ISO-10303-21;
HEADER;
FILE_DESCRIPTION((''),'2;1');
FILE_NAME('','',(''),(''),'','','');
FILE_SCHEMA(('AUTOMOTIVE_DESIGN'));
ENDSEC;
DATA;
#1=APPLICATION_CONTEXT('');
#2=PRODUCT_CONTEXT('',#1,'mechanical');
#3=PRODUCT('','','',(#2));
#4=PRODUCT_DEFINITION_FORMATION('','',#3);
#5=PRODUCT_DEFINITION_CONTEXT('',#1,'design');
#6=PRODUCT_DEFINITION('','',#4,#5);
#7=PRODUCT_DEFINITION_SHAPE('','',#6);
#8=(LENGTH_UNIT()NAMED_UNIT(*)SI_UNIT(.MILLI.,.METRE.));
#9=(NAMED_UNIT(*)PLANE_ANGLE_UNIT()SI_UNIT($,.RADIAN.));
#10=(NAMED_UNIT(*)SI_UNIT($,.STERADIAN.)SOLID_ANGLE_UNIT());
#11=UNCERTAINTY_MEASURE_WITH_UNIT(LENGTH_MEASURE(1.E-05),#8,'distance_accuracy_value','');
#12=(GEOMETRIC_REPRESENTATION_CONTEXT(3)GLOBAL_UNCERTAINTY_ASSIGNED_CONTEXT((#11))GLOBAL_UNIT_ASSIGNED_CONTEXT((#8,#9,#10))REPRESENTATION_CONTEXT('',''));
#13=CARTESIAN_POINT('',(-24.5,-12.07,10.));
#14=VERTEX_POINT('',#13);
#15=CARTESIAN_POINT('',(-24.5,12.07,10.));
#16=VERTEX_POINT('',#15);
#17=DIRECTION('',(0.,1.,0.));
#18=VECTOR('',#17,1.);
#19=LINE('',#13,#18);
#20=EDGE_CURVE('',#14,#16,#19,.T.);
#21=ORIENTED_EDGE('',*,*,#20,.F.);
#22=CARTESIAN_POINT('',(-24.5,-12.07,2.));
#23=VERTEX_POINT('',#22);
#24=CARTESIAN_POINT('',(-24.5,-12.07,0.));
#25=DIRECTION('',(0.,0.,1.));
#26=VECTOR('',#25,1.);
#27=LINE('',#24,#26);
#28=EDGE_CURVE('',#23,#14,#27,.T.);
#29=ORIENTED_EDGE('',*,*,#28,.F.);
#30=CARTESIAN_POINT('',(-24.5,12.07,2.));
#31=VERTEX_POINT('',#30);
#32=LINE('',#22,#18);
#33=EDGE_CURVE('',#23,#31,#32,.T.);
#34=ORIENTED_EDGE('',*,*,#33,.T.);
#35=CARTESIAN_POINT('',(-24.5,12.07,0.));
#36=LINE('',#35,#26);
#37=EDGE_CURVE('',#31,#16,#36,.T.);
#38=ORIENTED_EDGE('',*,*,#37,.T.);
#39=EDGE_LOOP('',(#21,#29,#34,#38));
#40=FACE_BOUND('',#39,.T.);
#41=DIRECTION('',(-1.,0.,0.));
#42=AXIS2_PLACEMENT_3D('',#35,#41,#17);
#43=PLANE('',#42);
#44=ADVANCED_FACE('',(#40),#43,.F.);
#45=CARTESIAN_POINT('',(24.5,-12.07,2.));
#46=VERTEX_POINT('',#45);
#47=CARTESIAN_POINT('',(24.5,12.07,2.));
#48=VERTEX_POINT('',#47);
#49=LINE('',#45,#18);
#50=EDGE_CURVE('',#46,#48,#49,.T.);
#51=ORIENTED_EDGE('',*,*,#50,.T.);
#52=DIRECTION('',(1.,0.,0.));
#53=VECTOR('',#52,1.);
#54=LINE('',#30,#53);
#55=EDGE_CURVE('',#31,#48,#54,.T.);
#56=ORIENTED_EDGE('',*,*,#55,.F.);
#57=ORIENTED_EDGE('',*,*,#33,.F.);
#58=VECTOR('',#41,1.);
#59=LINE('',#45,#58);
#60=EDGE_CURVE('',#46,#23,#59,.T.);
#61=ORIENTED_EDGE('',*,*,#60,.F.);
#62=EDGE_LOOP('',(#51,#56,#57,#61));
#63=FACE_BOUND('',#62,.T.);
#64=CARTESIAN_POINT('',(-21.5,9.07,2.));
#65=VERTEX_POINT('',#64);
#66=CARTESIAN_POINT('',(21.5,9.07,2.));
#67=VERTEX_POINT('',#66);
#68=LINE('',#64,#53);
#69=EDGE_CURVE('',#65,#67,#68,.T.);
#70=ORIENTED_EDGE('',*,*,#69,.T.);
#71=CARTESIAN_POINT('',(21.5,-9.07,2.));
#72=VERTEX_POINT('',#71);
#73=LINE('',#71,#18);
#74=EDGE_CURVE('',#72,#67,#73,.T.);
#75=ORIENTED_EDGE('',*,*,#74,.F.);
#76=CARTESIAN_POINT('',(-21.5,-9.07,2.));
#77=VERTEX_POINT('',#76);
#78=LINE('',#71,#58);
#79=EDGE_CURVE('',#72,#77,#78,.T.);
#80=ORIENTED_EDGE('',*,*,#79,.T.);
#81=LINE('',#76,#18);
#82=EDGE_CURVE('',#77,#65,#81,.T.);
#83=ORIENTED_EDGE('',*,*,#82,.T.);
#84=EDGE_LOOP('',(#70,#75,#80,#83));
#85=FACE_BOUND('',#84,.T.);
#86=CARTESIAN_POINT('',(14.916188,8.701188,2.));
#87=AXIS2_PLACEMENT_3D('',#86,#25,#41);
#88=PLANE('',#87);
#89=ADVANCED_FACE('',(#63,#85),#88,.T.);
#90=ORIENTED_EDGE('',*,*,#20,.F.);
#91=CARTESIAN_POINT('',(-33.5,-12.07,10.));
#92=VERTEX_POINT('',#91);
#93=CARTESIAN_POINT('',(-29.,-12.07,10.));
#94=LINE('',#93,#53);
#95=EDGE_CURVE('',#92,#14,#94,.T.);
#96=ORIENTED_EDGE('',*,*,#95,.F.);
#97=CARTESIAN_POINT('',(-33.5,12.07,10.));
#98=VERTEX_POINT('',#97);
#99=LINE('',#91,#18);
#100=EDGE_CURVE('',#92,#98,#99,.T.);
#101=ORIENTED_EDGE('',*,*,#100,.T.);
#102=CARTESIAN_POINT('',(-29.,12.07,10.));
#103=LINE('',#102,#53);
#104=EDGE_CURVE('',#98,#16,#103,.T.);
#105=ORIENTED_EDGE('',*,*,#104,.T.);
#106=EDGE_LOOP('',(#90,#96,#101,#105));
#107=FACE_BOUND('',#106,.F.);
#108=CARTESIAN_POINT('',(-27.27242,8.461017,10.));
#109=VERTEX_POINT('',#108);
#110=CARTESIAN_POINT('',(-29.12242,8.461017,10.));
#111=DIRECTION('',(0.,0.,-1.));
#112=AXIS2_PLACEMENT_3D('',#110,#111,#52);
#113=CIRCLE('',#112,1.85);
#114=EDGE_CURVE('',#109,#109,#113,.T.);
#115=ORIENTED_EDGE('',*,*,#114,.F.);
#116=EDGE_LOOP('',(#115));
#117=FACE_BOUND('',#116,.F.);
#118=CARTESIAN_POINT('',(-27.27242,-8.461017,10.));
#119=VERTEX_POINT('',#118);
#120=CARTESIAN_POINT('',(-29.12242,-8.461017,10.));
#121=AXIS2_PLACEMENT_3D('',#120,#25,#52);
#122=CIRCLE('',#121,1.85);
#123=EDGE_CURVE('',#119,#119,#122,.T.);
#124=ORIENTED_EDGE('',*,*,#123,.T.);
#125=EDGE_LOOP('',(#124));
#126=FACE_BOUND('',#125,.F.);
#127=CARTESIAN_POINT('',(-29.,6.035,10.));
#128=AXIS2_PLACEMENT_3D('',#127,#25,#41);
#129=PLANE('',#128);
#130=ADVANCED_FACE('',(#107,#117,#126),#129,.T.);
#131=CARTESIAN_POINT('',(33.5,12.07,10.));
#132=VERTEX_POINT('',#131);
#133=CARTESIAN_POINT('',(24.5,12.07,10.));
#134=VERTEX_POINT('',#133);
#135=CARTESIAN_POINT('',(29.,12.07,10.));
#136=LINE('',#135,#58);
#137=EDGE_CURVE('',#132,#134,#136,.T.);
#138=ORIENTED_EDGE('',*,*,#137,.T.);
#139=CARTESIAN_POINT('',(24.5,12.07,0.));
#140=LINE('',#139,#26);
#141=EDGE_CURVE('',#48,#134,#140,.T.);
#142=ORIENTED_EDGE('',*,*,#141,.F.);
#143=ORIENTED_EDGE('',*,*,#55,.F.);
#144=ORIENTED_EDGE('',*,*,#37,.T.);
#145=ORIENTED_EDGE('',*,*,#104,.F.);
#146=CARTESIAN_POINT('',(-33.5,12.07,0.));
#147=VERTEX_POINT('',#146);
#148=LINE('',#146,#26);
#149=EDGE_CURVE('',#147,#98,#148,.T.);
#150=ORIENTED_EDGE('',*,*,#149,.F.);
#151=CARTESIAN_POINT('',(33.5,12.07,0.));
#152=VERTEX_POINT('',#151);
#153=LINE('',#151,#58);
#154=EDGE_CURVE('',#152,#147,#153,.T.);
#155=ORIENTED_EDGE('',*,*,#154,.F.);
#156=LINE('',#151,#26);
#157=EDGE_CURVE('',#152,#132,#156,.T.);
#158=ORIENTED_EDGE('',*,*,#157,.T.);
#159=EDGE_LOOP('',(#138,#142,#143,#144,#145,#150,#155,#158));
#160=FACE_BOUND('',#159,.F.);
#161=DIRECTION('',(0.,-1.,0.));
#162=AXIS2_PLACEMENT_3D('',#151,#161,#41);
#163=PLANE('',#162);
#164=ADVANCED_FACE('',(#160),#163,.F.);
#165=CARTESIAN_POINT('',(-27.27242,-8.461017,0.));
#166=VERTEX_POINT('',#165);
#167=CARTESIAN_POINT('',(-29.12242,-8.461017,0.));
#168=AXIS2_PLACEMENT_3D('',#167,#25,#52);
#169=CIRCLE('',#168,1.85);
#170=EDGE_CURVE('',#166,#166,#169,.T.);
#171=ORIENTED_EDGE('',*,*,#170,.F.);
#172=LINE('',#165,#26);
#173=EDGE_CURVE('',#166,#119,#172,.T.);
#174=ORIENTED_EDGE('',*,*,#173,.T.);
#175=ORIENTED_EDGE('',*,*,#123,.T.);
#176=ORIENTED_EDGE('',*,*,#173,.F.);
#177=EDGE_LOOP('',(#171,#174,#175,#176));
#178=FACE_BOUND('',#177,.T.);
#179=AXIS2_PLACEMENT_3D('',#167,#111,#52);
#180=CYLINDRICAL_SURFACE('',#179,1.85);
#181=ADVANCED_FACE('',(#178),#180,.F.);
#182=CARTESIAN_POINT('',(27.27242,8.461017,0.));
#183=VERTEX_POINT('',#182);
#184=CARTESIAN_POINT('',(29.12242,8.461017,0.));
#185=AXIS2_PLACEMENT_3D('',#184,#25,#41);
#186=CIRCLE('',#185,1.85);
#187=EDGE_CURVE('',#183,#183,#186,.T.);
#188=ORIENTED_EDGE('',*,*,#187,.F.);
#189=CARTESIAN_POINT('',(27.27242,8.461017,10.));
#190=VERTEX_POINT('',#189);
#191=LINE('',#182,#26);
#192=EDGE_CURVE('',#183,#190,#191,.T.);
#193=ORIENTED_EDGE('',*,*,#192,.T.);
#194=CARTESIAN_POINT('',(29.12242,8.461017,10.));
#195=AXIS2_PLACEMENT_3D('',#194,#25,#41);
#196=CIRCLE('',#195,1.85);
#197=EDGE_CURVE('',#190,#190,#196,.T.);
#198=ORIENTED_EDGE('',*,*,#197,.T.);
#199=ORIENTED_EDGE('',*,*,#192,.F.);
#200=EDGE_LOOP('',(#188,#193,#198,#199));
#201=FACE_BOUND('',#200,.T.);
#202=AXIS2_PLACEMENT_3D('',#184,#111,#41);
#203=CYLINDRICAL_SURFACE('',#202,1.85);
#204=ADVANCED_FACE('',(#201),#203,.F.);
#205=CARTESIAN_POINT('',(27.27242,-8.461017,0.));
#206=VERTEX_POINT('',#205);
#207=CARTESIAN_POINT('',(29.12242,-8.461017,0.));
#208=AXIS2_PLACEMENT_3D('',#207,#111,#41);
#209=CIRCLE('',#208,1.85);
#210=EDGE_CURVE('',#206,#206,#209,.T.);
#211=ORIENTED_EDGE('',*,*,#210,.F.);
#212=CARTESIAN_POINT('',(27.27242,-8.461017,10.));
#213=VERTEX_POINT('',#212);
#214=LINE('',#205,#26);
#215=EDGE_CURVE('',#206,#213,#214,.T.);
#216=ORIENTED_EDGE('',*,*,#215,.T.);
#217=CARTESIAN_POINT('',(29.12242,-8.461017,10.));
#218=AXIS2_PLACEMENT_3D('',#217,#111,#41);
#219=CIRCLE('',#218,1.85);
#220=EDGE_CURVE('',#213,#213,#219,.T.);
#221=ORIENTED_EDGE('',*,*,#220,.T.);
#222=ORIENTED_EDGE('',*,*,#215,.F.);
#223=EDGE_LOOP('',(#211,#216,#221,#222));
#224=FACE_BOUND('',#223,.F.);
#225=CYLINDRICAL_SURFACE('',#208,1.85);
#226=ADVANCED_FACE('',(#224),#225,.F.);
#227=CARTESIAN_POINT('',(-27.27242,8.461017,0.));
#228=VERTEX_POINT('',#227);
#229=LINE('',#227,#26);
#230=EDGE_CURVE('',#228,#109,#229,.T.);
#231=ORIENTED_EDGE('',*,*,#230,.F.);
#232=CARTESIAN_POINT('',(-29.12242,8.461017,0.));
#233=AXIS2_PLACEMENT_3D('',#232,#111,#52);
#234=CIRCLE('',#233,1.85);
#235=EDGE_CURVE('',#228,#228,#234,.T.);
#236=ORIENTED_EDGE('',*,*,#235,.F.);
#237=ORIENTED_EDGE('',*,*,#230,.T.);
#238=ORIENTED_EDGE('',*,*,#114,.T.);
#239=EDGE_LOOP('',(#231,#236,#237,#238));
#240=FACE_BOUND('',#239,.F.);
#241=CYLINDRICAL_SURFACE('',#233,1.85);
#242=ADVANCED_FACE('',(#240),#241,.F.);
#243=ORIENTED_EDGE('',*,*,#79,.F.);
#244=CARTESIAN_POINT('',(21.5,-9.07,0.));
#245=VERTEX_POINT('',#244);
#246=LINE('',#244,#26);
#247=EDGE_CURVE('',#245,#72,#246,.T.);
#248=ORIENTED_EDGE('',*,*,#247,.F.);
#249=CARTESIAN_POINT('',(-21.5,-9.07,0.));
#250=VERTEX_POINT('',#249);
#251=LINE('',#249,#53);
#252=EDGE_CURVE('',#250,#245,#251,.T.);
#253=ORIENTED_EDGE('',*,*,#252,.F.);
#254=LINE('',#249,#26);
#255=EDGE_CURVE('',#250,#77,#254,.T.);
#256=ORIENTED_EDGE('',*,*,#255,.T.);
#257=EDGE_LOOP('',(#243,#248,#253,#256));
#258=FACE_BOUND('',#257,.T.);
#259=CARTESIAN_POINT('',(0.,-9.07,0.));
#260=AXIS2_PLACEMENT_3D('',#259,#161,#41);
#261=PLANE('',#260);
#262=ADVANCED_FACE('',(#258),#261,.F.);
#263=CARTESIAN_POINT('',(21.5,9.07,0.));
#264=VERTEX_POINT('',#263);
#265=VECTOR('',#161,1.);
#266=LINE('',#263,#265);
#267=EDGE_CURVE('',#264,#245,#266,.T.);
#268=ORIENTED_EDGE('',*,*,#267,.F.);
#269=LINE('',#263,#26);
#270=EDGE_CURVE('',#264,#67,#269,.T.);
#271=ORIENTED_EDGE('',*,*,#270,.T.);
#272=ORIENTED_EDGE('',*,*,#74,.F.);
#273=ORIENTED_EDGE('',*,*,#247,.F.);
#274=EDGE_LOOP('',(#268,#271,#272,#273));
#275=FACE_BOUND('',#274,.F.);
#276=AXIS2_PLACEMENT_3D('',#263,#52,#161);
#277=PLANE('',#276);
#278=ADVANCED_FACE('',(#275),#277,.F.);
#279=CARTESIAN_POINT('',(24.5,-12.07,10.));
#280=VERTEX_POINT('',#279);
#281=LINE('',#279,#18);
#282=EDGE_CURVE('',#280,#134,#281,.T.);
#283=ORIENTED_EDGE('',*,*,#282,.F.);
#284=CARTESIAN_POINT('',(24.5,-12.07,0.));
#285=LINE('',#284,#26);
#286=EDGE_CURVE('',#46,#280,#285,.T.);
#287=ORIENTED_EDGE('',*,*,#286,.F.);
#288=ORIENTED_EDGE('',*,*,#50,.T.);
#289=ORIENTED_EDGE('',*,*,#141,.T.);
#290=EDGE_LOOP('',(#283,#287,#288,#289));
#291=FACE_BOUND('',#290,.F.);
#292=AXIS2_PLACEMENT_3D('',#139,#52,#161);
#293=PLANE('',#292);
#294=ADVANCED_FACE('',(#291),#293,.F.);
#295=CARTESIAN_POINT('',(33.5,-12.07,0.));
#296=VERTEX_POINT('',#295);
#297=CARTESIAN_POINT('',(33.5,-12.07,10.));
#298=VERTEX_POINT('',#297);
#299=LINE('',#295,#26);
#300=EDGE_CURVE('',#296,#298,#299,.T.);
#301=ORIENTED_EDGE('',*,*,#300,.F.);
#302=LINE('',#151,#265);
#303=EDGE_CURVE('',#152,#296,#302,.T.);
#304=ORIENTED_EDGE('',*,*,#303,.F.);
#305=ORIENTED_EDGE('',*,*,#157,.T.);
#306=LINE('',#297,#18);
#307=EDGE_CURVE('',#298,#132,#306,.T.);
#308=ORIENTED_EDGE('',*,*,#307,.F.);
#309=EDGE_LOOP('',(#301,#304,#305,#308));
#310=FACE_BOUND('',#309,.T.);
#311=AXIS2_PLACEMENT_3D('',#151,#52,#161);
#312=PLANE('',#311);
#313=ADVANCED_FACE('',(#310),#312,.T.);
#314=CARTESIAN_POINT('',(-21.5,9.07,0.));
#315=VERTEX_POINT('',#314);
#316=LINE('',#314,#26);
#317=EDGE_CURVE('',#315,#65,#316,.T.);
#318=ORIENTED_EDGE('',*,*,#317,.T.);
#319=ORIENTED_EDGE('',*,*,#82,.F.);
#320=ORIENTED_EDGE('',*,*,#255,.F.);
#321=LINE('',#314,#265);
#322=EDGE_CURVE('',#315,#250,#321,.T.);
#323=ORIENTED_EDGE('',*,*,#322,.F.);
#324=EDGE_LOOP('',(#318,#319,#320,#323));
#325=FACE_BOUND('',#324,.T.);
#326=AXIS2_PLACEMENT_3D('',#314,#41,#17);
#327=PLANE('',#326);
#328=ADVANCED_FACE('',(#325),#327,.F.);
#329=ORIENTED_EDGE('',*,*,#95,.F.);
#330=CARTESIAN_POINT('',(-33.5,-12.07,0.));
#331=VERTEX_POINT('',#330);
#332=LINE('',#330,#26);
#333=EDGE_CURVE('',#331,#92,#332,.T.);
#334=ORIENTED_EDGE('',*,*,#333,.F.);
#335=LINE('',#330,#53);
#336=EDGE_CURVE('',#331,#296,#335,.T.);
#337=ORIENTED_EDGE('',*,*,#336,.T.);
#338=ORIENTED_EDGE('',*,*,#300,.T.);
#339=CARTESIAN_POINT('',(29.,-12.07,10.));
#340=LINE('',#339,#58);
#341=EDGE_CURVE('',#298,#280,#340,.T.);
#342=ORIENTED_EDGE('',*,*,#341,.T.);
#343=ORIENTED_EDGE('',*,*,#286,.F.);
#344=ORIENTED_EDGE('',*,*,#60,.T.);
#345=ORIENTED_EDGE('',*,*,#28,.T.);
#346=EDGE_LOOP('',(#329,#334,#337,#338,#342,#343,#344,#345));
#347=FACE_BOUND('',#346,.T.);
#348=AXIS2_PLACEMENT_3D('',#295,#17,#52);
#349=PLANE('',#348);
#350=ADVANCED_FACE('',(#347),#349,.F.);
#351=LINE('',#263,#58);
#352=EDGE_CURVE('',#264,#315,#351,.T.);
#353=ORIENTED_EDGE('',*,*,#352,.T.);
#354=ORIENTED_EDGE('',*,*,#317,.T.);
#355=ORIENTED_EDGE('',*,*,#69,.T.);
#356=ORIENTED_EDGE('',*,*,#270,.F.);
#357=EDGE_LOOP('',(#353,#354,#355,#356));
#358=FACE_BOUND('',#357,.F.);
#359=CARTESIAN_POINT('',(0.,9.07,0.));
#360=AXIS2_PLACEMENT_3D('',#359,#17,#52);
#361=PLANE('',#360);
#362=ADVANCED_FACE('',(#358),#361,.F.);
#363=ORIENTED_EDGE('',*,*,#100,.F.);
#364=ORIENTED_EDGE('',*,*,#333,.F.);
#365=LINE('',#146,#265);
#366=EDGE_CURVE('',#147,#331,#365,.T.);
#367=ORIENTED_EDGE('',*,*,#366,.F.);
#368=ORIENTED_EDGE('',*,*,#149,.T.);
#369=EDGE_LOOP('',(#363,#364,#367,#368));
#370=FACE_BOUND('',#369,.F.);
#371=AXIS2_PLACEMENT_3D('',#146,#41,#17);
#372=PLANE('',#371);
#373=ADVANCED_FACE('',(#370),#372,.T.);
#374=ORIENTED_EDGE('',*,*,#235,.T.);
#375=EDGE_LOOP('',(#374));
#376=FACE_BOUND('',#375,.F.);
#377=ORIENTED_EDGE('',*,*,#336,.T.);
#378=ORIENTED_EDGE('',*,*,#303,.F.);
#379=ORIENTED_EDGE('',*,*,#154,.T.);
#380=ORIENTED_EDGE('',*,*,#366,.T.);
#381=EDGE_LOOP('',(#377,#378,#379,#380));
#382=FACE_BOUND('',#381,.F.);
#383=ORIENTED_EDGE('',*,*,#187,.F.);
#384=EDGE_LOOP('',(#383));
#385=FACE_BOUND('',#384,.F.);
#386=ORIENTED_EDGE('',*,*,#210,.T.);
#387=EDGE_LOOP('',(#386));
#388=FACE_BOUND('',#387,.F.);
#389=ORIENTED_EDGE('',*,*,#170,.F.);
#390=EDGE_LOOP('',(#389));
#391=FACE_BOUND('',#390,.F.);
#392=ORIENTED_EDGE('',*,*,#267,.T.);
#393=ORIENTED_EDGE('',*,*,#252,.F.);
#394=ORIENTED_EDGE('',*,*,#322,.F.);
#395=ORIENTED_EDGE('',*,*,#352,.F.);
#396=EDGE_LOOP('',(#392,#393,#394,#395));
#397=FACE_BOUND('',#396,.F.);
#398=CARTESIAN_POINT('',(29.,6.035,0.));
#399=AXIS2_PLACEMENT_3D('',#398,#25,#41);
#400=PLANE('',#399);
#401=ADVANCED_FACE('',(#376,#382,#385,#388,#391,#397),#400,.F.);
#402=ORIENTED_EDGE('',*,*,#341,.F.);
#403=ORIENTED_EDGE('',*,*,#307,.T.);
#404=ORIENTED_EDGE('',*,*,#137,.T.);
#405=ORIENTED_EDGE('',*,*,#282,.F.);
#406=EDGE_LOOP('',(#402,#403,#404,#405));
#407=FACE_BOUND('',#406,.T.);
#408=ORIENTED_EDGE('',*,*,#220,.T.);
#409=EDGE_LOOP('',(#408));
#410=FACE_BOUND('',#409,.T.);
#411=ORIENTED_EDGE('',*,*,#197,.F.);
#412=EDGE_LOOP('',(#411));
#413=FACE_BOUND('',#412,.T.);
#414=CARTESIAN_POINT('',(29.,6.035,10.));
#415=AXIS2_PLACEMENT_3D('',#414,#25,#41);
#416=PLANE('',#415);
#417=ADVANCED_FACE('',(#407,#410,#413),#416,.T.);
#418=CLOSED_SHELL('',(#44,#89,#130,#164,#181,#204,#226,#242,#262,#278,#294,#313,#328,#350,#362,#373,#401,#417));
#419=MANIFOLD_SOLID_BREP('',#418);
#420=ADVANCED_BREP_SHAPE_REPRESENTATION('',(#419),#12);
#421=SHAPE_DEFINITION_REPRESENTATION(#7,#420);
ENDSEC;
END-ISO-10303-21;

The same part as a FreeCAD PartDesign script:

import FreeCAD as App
import Part
import Sketcher

V = App.Vector


def add_polygon(sketch, points):
    """Adds a closed chain of lines whose ends are joined by coincident constraints."""
    first, n = sketch.GeometryCount, len(points)
    for a, b in zip(points, points[1:] + points[:1]):
        sketch.addGeometry(Part.LineSegment(App.Vector(*a, 0), App.Vector(*b, 0)), False)
    for i in range(n):
        sketch.addConstraint(Sketcher.Constraint("Coincident", first + i, 2, first + (i + 1) % n, 1))

doc = App.newDocument("Part")
params = doc.addObject("Spreadsheet::Sheet", "Params")
for row, (alias, value) in enumerate([
    ("sketch1_width", "3 mm"),
    ("sketch1_width2", "24.5 mm"),
    ("sketch1_height", "9.07 mm"),
    ("pad1_length", "2 mm"),
    ("sketch2_diameter", "3.7 mm"),
    ("sketch2_width", "9 mm"),
    ("sketch2_height", "12.07 mm"),
    ("pad2_length", "10 mm"),
], start=1):
    params.set(f"A{row}", alias)
    params.set(f"B{row}", "=" + value)
    params.setAlias(f"B{row}", alias)

body = doc.addObject("PartDesign::Body", "Body")

# Sketch on XY plane
sketch1 = doc.addObject("Sketcher::SketchObject", "Sketch")
body.addObject(sketch1)
sketch1.AttachmentSupport = (doc.XY_Plane, [""])
sketch1.MapMode = "FlatFace"
add_polygon(sketch1, [(-21.5, -9.1), (-21.5, 0), (-24.5, 0), (-24.5, -12.1), (0, -12.1), (0, -9.1)])  # lines 0-5
sketch1.addConstraint([
    Sketcher.Constraint("Vertical", 0),
    Sketcher.Constraint("Horizontal", 1),
    Sketcher.Constraint("Vertical", 2),
    Sketcher.Constraint("Horizontal", 3),
    Sketcher.Constraint("Vertical", 4),
    Sketcher.Constraint("Horizontal", 5),
    Sketcher.Constraint("PointOnObject", 0, 2, -1),
    Sketcher.Constraint("PointOnObject", 3, 2, -2),
    Sketcher.Constraint("Equal", 1, 4),
    Sketcher.Constraint("DistanceX", 1, 2, 1, 1, 3.0),
    Sketcher.Constraint("DistanceX", 3, 1, 3, 2, 24.5),
    Sketcher.Constraint("DistanceY", 0, 1, 0, 2, 9.07),
])
sketch1.setExpression("Constraints[15]", "Params.sketch1_width")
sketch1.setExpression("Constraints[16]", "Params.sketch1_width2")
sketch1.setExpression("Constraints[17]", "Params.sketch1_height")
pad1 = doc.addObject("PartDesign::Pad", "Pad")
body.addObject(pad1)
pad1.Profile = sketch1
pad1.setExpression("Length", "Params.pad1_length")

# Sketch on XY plane
sketch2 = doc.addObject("Sketcher::SketchObject", "Sketch001")
body.addObject(sketch2)
sketch2.AttachmentSupport = (doc.XY_Plane, [""])
sketch2.MapMode = "FlatFace"
add_polygon(sketch2, [(-33.5, 0), (-33.5, -12.1), (-24.5, -12.1), (-24.5, 0)])  # lines 0-3
sketch2.addGeometry(Part.Circle(V(-29.1, -8.5, 0), V(0, 0, 1), 1.9), False)  # 4
sketch2.addConstraint([
    Sketcher.Constraint("Vertical", 0),
    Sketcher.Constraint("Horizontal", 1),
    Sketcher.Constraint("Vertical", 2),
    Sketcher.Constraint("Horizontal", 3),
    Sketcher.Constraint("PointOnObject", 2, 2, -1),
    Sketcher.Constraint("Diameter", 4, 3.7),
    Sketcher.Constraint("DistanceX", 1, 1, 1, 2, 9.0),
    Sketcher.Constraint("DistanceY", 0, 2, 0, 1, 12.07),
    Sketcher.Constraint("DistanceX", 0, 2, -1, 1, 33.5),
    Sketcher.Constraint("DistanceX", 4, 3, -1, 1, 29.12242),
    Sketcher.Constraint("DistanceY", 4, 3, -1, 1, 8.461017),
])
sketch2.setExpression("Constraints[9]", "Params.sketch2_diameter")
sketch2.setExpression("Constraints[10]", "Params.sketch2_width")
sketch2.setExpression("Constraints[11]", "Params.sketch2_height")
pad2 = doc.addObject("PartDesign::Pad", "Pad001")
body.addObject(pad2)
pad2.Profile = sketch2
pad2.setExpression("Length", "Params.pad2_length")
body2 = doc.addObject("PartDesign::Body", "Body001")
doc.recompute()

body2.BaseFeature = body
doc.recompute()

mirroring = doc.addObject("Part::Mirroring", "Mirroring")
mirroring.Source = body
mirroring.Base = V(-28.625, 0, 4.75)
mirroring.Normal = V(0, 1, 0)
body3 = doc.addObject("PartDesign::Body", "Body002")
body3.BaseFeature = mirroring
boolean = doc.addObject("PartDesign::Boolean", "Boolean")
body2.addObject(boolean)
boolean.Type = "Fuse"
boolean.addObjects([body3])
doc.recompute()
body4 = doc.addObject("PartDesign::Body", "Body003")
doc.recompute()

body4.BaseFeature = body2
doc.recompute()

mirroring2 = doc.addObject("Part::Mirroring", "Mirroring001")
mirroring2.Source = body2
mirroring2.Base = V(0, 0, 0)
mirroring2.Normal = V(1, 0, 0)
body5 = doc.addObject("PartDesign::Body", "Body004")
body5.BaseFeature = mirroring2
boolean2 = doc.addObject("PartDesign::Boolean", "Boolean001")
body4.addObject(boolean2)
boolean2.Type = "Fuse"
boolean2.addObjects([body5])
doc.recompute()
mirroring.Visibility = False
mirroring2.Visibility = False

doc.recompute()
